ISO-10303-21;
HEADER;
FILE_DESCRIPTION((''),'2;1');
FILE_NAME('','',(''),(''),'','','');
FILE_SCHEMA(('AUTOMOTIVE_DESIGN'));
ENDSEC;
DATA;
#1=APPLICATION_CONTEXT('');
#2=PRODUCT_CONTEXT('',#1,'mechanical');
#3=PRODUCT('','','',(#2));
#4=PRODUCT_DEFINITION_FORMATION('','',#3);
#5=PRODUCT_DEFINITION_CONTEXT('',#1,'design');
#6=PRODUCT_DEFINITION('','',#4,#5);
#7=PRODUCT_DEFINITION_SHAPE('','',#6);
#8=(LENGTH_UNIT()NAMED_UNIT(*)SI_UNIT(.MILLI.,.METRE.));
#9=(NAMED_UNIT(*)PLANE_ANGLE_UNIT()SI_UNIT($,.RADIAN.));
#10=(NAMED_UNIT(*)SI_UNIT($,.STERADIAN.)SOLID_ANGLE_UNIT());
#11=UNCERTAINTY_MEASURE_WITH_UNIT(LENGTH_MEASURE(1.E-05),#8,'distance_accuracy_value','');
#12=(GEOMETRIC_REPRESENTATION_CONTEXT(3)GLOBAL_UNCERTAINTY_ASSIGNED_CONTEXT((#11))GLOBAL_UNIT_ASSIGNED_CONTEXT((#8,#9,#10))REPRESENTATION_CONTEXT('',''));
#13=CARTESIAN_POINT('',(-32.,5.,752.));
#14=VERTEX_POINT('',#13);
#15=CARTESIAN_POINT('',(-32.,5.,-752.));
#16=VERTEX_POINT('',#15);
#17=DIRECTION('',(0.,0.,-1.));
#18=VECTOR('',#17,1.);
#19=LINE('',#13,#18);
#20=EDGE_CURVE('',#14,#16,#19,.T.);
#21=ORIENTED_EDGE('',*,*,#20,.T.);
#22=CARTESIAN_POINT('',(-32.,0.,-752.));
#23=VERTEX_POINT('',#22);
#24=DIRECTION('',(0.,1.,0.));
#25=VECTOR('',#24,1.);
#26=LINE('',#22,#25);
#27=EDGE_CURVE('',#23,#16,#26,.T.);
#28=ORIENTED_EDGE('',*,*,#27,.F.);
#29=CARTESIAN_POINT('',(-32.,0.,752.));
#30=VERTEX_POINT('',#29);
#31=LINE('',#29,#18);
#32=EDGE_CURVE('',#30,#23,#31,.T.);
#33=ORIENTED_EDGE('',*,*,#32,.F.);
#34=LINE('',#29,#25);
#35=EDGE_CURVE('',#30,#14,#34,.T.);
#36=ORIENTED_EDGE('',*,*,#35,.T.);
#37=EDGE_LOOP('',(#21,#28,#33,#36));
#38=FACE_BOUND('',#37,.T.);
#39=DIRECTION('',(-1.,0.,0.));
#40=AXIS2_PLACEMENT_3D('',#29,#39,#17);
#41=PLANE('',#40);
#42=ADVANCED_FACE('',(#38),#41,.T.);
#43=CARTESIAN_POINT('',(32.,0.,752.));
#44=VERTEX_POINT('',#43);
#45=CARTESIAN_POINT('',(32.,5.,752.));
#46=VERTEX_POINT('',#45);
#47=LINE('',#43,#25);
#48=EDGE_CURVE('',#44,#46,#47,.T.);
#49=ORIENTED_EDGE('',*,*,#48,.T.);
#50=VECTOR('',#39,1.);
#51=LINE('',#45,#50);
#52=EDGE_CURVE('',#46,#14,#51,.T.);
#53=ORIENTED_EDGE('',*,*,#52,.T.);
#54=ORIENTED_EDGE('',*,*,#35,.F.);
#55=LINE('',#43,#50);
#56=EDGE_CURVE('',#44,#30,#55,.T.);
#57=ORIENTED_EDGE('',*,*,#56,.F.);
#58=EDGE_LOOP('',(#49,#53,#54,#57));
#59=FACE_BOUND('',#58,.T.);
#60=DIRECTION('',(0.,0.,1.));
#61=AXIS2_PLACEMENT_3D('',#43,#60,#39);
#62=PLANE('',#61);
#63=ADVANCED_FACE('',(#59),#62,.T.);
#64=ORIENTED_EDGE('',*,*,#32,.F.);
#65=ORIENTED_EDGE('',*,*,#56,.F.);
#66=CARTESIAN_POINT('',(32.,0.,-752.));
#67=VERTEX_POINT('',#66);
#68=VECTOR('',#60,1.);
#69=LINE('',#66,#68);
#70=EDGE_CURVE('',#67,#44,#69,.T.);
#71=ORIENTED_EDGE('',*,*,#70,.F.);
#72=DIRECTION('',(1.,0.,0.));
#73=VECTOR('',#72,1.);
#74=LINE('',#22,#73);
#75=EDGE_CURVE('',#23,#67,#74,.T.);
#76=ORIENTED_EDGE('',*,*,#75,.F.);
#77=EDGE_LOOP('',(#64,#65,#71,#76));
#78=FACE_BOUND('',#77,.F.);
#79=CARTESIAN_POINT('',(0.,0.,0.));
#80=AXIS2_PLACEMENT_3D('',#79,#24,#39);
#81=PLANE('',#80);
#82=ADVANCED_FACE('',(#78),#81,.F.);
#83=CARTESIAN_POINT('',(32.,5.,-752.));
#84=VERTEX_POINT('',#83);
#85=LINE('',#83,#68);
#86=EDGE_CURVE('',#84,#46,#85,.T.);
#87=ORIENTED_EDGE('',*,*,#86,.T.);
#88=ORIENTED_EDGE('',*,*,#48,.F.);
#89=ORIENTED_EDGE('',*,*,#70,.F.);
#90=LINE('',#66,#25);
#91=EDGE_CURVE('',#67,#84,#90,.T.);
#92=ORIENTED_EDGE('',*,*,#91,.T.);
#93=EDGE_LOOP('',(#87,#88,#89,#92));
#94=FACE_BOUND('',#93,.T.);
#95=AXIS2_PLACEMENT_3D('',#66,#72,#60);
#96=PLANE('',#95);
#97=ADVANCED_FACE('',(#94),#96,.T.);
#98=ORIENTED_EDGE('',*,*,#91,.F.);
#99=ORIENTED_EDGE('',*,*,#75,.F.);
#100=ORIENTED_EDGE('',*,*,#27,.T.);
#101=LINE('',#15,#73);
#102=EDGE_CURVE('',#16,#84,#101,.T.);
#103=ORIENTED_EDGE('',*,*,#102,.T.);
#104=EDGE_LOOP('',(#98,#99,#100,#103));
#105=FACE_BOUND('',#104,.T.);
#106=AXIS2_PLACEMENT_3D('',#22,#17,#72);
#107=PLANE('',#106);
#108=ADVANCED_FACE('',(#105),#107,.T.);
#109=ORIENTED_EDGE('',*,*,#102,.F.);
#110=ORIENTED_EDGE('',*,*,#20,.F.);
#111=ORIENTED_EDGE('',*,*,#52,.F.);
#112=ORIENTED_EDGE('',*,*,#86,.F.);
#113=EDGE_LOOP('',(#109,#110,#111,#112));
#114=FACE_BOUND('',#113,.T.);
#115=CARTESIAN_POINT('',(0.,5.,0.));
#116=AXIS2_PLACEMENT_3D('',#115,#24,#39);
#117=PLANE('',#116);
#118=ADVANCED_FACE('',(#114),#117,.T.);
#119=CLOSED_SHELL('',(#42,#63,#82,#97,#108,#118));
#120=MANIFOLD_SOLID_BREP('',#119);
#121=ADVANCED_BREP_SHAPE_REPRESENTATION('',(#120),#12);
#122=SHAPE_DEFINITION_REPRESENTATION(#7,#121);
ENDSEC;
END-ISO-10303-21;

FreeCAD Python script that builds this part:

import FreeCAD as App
import Part
import Sketcher
Q = App.Units.Quantity


def add_polygon(sketch, points):
    """Adds a closed chain of lines whose ends are joined by coincident constraints."""
    first, n = sketch.GeometryCount, len(points)
    for a, b in zip(points, points[1:] + points[:1]):
        sketch.addGeometry(Part.LineSegment(App.Vector(*a, 0), App.Vector(*b, 0)), False)
    for i in range(n):
        sketch.addConstraint(Sketcher.Constraint("Coincident", first + i, 2, first + (i + 1) % n, 1))

doc = App.newDocument("Part")
body = doc.addObject("PartDesign::Body", "Body")

# Sketch on XZ plane
sketch1 = body.newObject("Sketcher::SketchObject", "Sketch")
sketch1.AttachmentSupport = (doc.getObject("XZ_Plane"), [""])
sketch1.MapMode = "FlatFace"
add_polygon(sketch1, [(-32, 752), (32, 752), (32, -752), (-32, -752)])  # lines 0-3
sketch1.addConstraint([
    Sketcher.Constraint("Horizontal", 0),
    Sketcher.Constraint("Vertical", 1),
    Sketcher.Constraint("Horizontal", 2),
    Sketcher.Constraint("Vertical", 3),
    Sketcher.Constraint("Symmetric", 0, 2, 2, 2, -1, 1),
    Sketcher.Constraint("DistanceX", 0, 1, 0, 2, Q("64 mm")),
    Sketcher.Constraint("DistanceY", 1, 2, 1, 1, Q("1504 mm")),
])
pad1 = body.newObject("PartDesign::Pad", "Pad")
pad1.Profile = sketch1
pad1.Length = 5
pad1.Reversed = True

doc.recompute()
